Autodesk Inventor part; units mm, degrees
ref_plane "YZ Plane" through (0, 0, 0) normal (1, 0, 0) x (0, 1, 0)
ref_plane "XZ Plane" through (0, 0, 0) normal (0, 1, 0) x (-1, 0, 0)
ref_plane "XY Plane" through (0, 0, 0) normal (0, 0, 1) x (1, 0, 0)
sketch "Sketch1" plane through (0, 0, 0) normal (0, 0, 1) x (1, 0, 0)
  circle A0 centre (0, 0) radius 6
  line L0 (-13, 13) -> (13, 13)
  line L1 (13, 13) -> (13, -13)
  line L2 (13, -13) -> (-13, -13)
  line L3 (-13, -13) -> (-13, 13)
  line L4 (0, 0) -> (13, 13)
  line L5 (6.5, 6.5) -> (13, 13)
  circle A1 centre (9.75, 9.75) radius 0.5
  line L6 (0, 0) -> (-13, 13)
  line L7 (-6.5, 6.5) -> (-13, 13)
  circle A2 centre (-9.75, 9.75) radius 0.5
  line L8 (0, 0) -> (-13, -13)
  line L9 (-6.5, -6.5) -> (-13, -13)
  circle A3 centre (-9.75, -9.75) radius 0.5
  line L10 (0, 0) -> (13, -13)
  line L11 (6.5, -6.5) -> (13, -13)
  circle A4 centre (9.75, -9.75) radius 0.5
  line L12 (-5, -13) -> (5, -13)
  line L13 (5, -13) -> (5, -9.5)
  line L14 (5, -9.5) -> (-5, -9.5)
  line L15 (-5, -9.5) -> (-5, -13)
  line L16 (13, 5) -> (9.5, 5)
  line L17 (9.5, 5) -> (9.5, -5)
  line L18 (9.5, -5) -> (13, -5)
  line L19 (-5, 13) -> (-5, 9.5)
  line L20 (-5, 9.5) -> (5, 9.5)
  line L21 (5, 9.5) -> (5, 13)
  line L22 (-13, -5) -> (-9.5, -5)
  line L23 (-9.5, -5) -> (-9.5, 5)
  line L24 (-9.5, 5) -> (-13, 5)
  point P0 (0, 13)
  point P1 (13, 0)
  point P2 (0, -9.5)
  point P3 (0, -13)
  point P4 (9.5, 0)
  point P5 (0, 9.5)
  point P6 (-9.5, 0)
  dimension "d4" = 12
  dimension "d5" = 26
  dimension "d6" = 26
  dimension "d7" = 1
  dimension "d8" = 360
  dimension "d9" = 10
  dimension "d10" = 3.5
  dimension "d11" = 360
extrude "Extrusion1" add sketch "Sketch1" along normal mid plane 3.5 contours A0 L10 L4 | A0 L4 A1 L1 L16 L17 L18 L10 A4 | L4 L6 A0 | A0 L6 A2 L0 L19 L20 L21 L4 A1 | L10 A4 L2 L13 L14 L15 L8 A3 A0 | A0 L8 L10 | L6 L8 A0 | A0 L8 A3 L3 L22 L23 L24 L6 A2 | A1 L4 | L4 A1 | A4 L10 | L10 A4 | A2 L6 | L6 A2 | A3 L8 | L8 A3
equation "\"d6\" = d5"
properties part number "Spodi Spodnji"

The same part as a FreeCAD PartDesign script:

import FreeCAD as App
import Part
import Sketcher

doc = App.newDocument("Part")
body = doc.addObject("PartDesign::Body", "Body")

# Sketch on XY plane
sketch1 = doc.addObject("Sketcher::SketchObject", "Sketch")
body.addObject(sketch1)
sketch1.AttachmentSupport = (doc.XY_Plane, [""])
sketch1.MapMode = "FlatFace"
sketch1.addGeometry([
    Part.LineSegment(App.Vector(13, 5, 0), App.Vector(13, 13, 0)),  # 0
    Part.LineSegment(App.Vector(13, 13, 0), App.Vector(5, 13, 0)),  # 1
    Part.LineSegment(App.Vector(5, 13, 0), App.Vector(5, 9.5, 0)),  # 2
    Part.LineSegment(App.Vector(5, 9.5, 0), App.Vector(-5, 9.5, 0)),  # 3
    Part.LineSegment(App.Vector(-5, 9.5, 0), App.Vector(-5, 13, 0)),  # 4
    Part.LineSegment(App.Vector(-5, 13, 0), App.Vector(-13, 13, 0)),  # 5
    Part.LineSegment(App.Vector(-13, 13, 0), App.Vector(-13, 5, 0)),  # 6
    Part.LineSegment(App.Vector(-13, 5, 0), App.Vector(-9.5, 5, 0)),  # 7
    Part.LineSegment(App.Vector(-9.5, 5, 0), App.Vector(-9.5, -5, 0)),  # 8
    Part.LineSegment(App.Vector(-9.5, -5, 0), App.Vector(-13, -5, 0)),  # 9
    Part.LineSegment(App.Vector(-13, -5, 0), App.Vector(-13, -13, 0)),  # 10
    Part.LineSegment(App.Vector(-13, -13, 0), App.Vector(-5, -13, 0)),  # 11
    Part.LineSegment(App.Vector(-5, -13, 0), App.Vector(-5, -9.5, 0)),  # 12
    Part.LineSegment(App.Vector(-5, -9.5, 0), App.Vector(5, -9.5, 0)),  # 13
    Part.LineSegment(App.Vector(5, -9.5, 0), App.Vector(5, -13, 0)),  # 14
    Part.LineSegment(App.Vector(5, -13, 0), App.Vector(13, -13, 0)),  # 15
    Part.LineSegment(App.Vector(13, -13, 0), App.Vector(13, -5, 0)),  # 16
    Part.LineSegment(App.Vector(13, -5, 0), App.Vector(9.5, -5, 0)),  # 17
    Part.LineSegment(App.Vector(9.5, -5, 0), App.Vector(9.5, 5, 0)),  # 18
    Part.LineSegment(App.Vector(9.5, 5, 0), App.Vector(13, 5, 0)),  # 19
], False)
sketch1.addConstraint([
    Sketcher.Constraint("Coincident", 0, 2, 1, 1),
    Sketcher.Constraint("Coincident", 1, 2, 2, 1),
    Sketcher.Constraint("Coincident", 2, 2, 3, 1),
    Sketcher.Constraint("Coincident", 3, 2, 4, 1),
    Sketcher.Constraint("Coincident", 4, 2, 5, 1),
    Sketcher.Constraint("Coincident", 5, 2, 6, 1),
    Sketcher.Constraint("Coincident", 6, 2, 7, 1),
    Sketcher.Constraint("Coincident", 7, 2, 8, 1),
    Sketcher.Constraint("Coincident", 8, 2, 9, 1),
    Sketcher.Constraint("Coincident", 9, 2, 10, 1),
    Sketcher.Constraint("Coincident", 10, 2, 11, 1),
    Sketcher.Constraint("Coincident", 11, 2, 12, 1),
    Sketcher.Constraint("Coincident", 12, 2, 13, 1),
    Sketcher.Constraint("Coincident", 13, 2, 14, 1),
    Sketcher.Constraint("Coincident", 14, 2, 15, 1),
    Sketcher.Constraint("Coincident", 15, 2, 16, 1),
    Sketcher.Constraint("Coincident", 16, 2, 17, 1),
    Sketcher.Constraint("Coincident", 17, 2, 18, 1),
    Sketcher.Constraint("Coincident", 18, 2, 19, 1),
    Sketcher.Constraint("Coincident", 19, 2, 0, 1),
    Sketcher.Constraint("Vertical", 0),
    Sketcher.Constraint("Horizontal", 1),
    Sketcher.Constraint("Vertical", 2),
    Sketcher.Constraint("Horizontal", 3),
    Sketcher.Constraint("Vertical", 4),
    Sketcher.Constraint("Horizontal", 5),
    Sketcher.Constraint("Vertical", 6),
    Sketcher.Constraint("Horizontal", 7),
    Sketcher.Constraint("Vertical", 8),
    Sketcher.Constraint("Horizontal", 9),
    Sketcher.Constraint("Vertical", 10),
    Sketcher.Constraint("Horizontal", 11),
    Sketcher.Constraint("Vertical", 12),
    Sketcher.Constraint("Horizontal", 13),
    Sketcher.Constraint("Vertical", 14),
    Sketcher.Constraint("Horizontal", 15),
    Sketcher.Constraint("Vertical", 16),
    Sketcher.Constraint("Horizontal", 17),
    Sketcher.Constraint("Vertical", 18),
    Sketcher.Constraint("Horizontal", 19),
    Sketcher.Constraint("Symmetric", 0, 2, 10, 2, -1, 1),
    Sketcher.Constraint("Symmetric", 2, 2, 12, 2, -1, 1),
    Sketcher.Constraint("Symmetric", 4, 2, 14, 2, -1, 1),
    Sketcher.Constraint("Symmetric", 6, 2, 16, 2, -1, 1),
    Sketcher.Constraint("Symmetric", 8, 2, 18, 2, -1, 1),
    Sketcher.Constraint("Symmetric", 1, 2, 4, 2, -2),
    Sketcher.Constraint("Symmetric", 9, 2, 16, 2, -2),
    Sketcher.Constraint("Equal", 15, 0),
    Sketcher.Constraint("Equal", 19, 2),
    Sketcher.Constraint("Equal", 13, 8),
    Sketcher.Constraint("DistanceX", 3, 2, 3, 1, 10.0),
    Sketcher.Constraint("DistanceX", 7, 1, 7, 2, 3.5),
    Sketcher.Constraint("DistanceX", 5, 2, 0, 2, 26.0),
])
pad1 = doc.addObject("PartDesign::Pad", "Pad")
body.addObject(pad1)
pad1.Profile = sketch1
pad1.Length = 3.5
pad1.Midplane = True

doc.recompute()
